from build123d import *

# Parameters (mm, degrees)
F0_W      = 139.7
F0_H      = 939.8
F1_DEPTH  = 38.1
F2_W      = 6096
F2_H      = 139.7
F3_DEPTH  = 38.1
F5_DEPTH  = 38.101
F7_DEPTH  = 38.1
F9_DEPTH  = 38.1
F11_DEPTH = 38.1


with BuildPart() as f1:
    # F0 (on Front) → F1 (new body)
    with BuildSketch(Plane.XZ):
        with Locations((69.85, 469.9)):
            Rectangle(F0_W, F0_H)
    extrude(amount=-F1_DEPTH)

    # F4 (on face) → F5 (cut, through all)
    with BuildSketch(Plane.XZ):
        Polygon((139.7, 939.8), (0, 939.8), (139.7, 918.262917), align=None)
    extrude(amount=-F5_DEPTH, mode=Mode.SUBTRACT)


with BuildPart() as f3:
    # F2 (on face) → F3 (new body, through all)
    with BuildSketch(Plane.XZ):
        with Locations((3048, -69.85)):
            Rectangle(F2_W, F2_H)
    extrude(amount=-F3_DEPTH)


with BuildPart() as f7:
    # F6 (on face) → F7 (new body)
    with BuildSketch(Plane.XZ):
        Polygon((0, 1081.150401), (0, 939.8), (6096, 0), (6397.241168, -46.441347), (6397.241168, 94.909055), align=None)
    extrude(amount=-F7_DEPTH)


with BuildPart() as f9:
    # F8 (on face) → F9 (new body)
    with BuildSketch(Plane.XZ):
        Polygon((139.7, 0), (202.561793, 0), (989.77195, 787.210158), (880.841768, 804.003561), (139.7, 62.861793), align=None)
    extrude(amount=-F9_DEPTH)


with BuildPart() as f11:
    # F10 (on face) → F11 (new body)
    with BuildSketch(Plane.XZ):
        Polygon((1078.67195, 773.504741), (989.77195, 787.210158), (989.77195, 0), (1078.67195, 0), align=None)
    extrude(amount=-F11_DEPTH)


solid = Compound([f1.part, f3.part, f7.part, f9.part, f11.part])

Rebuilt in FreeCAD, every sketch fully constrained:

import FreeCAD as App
import Part
import Sketcher
from FreeCAD import Vector
Q = App.Units.Quantity

doc = App.newDocument("Part")
body = doc.addObject("PartDesign::Body", "Body")

# Sketch on XZ plane
sketch1 = body.newObject("Sketcher::SketchObject", "Sketch")
sketch1.AttachmentSupport = (doc.getObject("XZ_Plane"), [""])
sketch1.MapMode = "FlatFace"
sketch1.addGeometry([
    Part.LineSegment(Vector(0, 940, 0), Vector(0, 0, 0)),
    Part.LineSegment(Vector(0, 0, 0), Vector(140, 0, 0)),
    Part.LineSegment(Vector(140, 0, 0), Vector(140, 940, 0)),
    Part.LineSegment(Vector(140, 940, 0), Vector(0, 940, 0)),
], False)
sketch1.addConstraint([
    Sketcher.Constraint("Coincident", 0, 2, 1, 1),
    Sketcher.Constraint("Coincident", 1, 2, 2, 1),
    Sketcher.Constraint("Coincident", 2, 2, 3, 1),
    Sketcher.Constraint("Coincident", 3, 2, 0, 1),
    Sketcher.Constraint("Vertical", 0),
    Sketcher.Constraint("Horizontal", 1),
    Sketcher.Constraint("Vertical", 2),
    Sketcher.Constraint("Horizontal", 3),
    Sketcher.Constraint("Coincident", 0, 2, -1, 1),
    Sketcher.Constraint("DistanceY", 0, 2, 0, 1, Q("37 in")),
    Sketcher.Constraint("DistanceX", 1, 1, 1, 2, Q("5.5 in")),
])
pad1 = body.newObject("PartDesign::Pad", "Pad")
pad1.Profile = sketch1
pad1.Length = Q("1.5 in")
pad1.Reversed = True

# Sketch on XZ plane
sketch2 = body.newObject("Sketcher::SketchObject", "Sketch001")
sketch2.AttachmentSupport = (doc.getObject("XZ_Plane"), [""])
sketch2.MapMode = "FlatFace"
sketch2.addGeometry([
    Part.LineSegment(Vector(140, 940, 0), Vector(0, 940, 0)),
    Part.LineSegment(Vector(0, 940, 0), Vector(140, 918, 0)),
    Part.LineSegment(Vector(140, 918, 0), Vector(140, 940, 0)),
], False)
sketch2.addConstraint([
    Sketcher.Constraint("Coincident", 0, 2, 1, 1),
    Sketcher.Constraint("Coincident", 1, 2, 2, 1),
    Sketcher.Constraint("Coincident", 2, 2, 0, 1),
    Sketcher.Constraint("Horizontal", 0),
    Sketcher.Constraint("Vertical", 2),
    Sketcher.Constraint("PointOnObject", 0, 2, -2),
    Sketcher.Constraint("DistanceX", 0, 2, 0, 1, Q("5.5 in")),
    Sketcher.Constraint("DistanceY", -1, 1, 0, 2, Q("37 in")),
    Sketcher.Constraint("Distance", 1, 141.350401),
])
pocket1 = body.newObject("PartDesign::Pocket", "Pocket")
pocket1.Profile = sketch2
pocket1.Type = "ThroughAll"
body2 = doc.addObject("PartDesign::Body", "Body001")

# Sketch on XZ plane
sketch3 = body2.newObject("Sketcher::SketchObject", "Sketch002")
sketch3.AttachmentSupport = (doc.getObject("XZ_Plane001"), [""])
sketch3.MapMode = "FlatFace"
sketch3.addGeometry([
    Part.LineSegment(Vector(0, 0, 0), Vector(0, -140, 0)),
    Part.LineSegment(Vector(0, -140, 0), Vector(6096, -140, 0)),
    Part.LineSegment(Vector(6096, -140, 0), Vector(6096, 0, 0)),
    Part.LineSegment(Vector(6096, 0, 0), Vector(0, 0, 0)),
], False)
sketch3.addConstraint([
    Sketcher.Constraint("Coincident", 0, 2, 1, 1),
    Sketcher.Constraint("Coincident", 1, 2, 2, 1),
    Sketcher.Constraint("Coincident", 2, 2, 3, 1),
    Sketcher.Constraint("Coincident", 3, 2, 0, 1),
    Sketcher.Constraint("Vertical", 0),
    Sketcher.Constraint("Horizontal", 1),
    Sketcher.Constraint("Vertical", 2),
    Sketcher.Constraint("Horizontal", 3),
    Sketcher.Constraint("Coincident", 3, 2, -1, 1),
    Sketcher.Constraint("DistanceX", 1, 1, 1, 2, Q("240 in")),
    Sketcher.Constraint("DistanceY", 0, 2, 0, 1, Q("5.5 in")),
])
pad2 = body2.newObject("PartDesign::Pad", "Pad001")
pad2.Profile = sketch3
pad2.Length = Q("1.5 in")
pad2.Reversed = True
body3 = doc.addObject("PartDesign::Body", "Body002")

# Sketch on XZ plane
sketch4 = body3.newObject("Sketcher::SketchObject", "Sketch003")
sketch4.AttachmentSupport = (doc.getObject("XZ_Plane002"), [""])
sketch4.MapMode = "FlatFace"
sketch4.addGeometry([
    Part.LineSegment(Vector(0, 1081, 0), Vector(0, 940, 0)),  # 0
    Part.LineSegment(Vector(0, 940, 0), Vector(6096, 0, 0)),  # 1
    Part.LineSegment(Vector(6096, 0, 0), Vector(6397, -46, 0)),  # 2
    Part.LineSegment(Vector(6397, -46, 0), Vector(6397, 95, 0)),  # 3
    Part.LineSegment(Vector(6397, 95, 0), Vector(0, 1081, 0)),  # 4
], False)
sketch4.addConstraint([
    Sketcher.Constraint("Coincident", 0, 2, 1, 1),
    Sketcher.Constraint("Coincident", 1, 2, 2, 1),
    Sketcher.Constraint("Coincident", 2, 2, 3, 1),
    Sketcher.Constraint("Coincident", 3, 2, 4, 1),
    Sketcher.Constraint("Coincident", 4, 2, 0, 1),
    Sketcher.Constraint("Vertical", 0),
    Sketcher.Constraint("Vertical", 3),
    Sketcher.Constraint("PointOnObject", 0, 2, -2),
    Sketcher.Constraint("PointOnObject", 1, 2, -1),
    Sketcher.Constraint("Parallel", 1, 2),
    Sketcher.Constraint("Parallel", 2, 4),
    Sketcher.Constraint("Distance", 2, Q("12 in")),
    Sketcher.Constraint("DistanceY", -1, 1, 0, 2, Q("37 in")),
    Sketcher.Constraint("DistanceX", -1, 1, 1, 2, Q("240 in")),
    Sketcher.Constraint("DistanceY", 0, 2, 0, 1, 141.350401),
])
pad3 = body3.newObject("PartDesign::Pad", "Pad002")
pad3.Profile = sketch4
pad3.Length = Q("1.5 in")
pad3.Reversed = True
body4 = doc.addObject("PartDesign::Body", "Body003")

# Sketch on XZ plane
sketch5 = body4.newObject("Sketcher::SketchObject", "Sketch004")
sketch5.AttachmentSupport = (doc.getObject("XZ_Plane003"), [""])
sketch5.MapMode = "FlatFace"
sketch5.addGeometry([
    Part.LineSegment(Vector(140, 0, 0), Vector(203, 0, 0)),  # 0
    Part.LineSegment(Vector(203, 0, 0), Vector(990, 787, 0)),  # 1
    Part.LineSegment(Vector(990, 787, 0), Vector(881, 804, 0)),  # 2
    Part.LineSegment(Vector(881, 804, 0), Vector(140, 63, 0)),  # 3
    Part.LineSegment(Vector(140, 63, 0), Vector(140, 0, 0)),  # 4
], False)
sketch5.addConstraint([
    Sketcher.Constraint("Coincident", 0, 2, 1, 1),
    Sketcher.Constraint("Coincident", 1, 2, 2, 1),
    Sketcher.Constraint("Coincident", 2, 2, 3, 1),
    Sketcher.Constraint("Coincident", 3, 2, 4, 1),
    Sketcher.Constraint("Coincident", 4, 2, 0, 1),
    Sketcher.Constraint("Horizontal", 0),
    Sketcher.Constraint("Vertical", 4),
    Sketcher.Constraint("PointOnObject", 0, 2, -1),
    Sketcher.Constraint("Parallel", 1, 3),
    Sketcher.Constraint("Equal", 0, 4),
    Sketcher.Constraint("Angle", 1, Q("45 deg")),
    Sketcher.Constraint("DistanceX", -1, 1, 3, 2, Q("5.5 in")),
    Sketcher.Constraint("Distance", 1, 1113.283281),
    Sketcher.Constraint("Distance", 2, 110.217072),
    Sketcher.Constraint("Distance", 3, 1048.13274),
])
pad4 = body4.newObject("PartDesign::Pad", "Pad003")
pad4.Profile = sketch5
pad4.Length = Q("1.5 in")
pad4.Reversed = True
body5 = doc.addObject("PartDesign::Body", "Body004")

# Sketch on XZ plane
sketch6 = body5.newObject("Sketcher::SketchObject", "Sketch005")
sketch6.AttachmentSupport = (doc.getObject("XZ_Plane004"), [""])
sketch6.MapMode = "FlatFace"
sketch6.addGeometry([
    Part.LineSegment(Vector(1079, 774, 0), Vector(990, 787, 0)),
    Part.LineSegment(Vector(990, 787, 0), Vector(990, 0, 0)),
    Part.LineSegment(Vector(990, 0, 0), Vector(1079, 0, 0)),
    Part.LineSegment(Vector(1079, 0, 0), Vector(1079, 774, 0)),
], False)
sketch6.addConstraint([
    Sketcher.Constraint("Coincident", 0, 2, 1, 1),
    Sketcher.Constraint("Coincident", 1, 2, 2, 1),
    Sketcher.Constraint("Coincident", 2, 2, 3, 1),
    Sketcher.Constraint("Coincident", 3, 2, 0, 1),
    Sketcher.Constraint("Vertical", 1),
    Sketcher.Constraint("Horizontal", 2),
    Sketcher.Constraint("Vertical", 3),
    Sketcher.Constraint("PointOnObject", 1, 2, -1),
    Sketcher.Constraint("DistanceX", 2, 1, 2, 2, Q("3.5 in")),
    Sketcher.Constraint("DistanceY", 1, 2, 1, 1, 787.210158),
    Sketcher.Constraint("DistanceY", 3, 1, 3, 2, 773.504741),
    Sketcher.Constraint("DistanceX", -1, 1, 0, 2, 989.77195),
])
pad5 = body5.newObject("PartDesign::Pad", "Pad004")
pad5.Profile = sketch6
pad5.Length = Q("1.5 in")
pad5.Reversed = True

doc.recompute()
